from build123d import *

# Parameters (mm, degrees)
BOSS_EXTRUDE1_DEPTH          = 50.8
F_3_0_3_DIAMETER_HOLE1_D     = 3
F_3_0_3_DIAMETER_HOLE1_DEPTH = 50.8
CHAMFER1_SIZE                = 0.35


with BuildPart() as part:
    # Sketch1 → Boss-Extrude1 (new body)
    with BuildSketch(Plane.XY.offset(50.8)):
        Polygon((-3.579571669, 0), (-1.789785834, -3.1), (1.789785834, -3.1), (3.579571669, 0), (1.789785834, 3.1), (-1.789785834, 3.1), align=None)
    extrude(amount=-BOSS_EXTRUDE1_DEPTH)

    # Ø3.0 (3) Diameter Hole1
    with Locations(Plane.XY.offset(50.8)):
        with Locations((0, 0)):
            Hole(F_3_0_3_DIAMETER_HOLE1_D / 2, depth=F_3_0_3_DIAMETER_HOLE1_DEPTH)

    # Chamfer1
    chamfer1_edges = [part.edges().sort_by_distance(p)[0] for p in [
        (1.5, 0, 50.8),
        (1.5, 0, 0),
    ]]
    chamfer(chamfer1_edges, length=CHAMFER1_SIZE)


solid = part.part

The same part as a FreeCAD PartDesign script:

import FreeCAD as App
import Part
import Sketcher
from FreeCAD import Vector
Q = App.Units.Quantity


def edges_at(feature, points):
    """Names of the edges that pass closest to the given points."""
    edges = feature.Shape.Edges
    near = lambda p: min(range(len(edges)), key=lambda i: edges[i].distToShape(Part.Vertex(*p))[0])
    return sorted({f"Edge{near(p) + 1}" for p in points})


def add_polygon(sketch, points):
    """Adds a closed chain of lines whose ends are joined by coincident constraints."""
    first, n = sketch.GeometryCount, len(points)
    for a, b in zip(points, points[1:] + points[:1]):
        sketch.addGeometry(Part.LineSegment(App.Vector(*a, 0), App.Vector(*b, 0)), False)
    for i in range(n):
        sketch.addConstraint(Sketcher.Constraint("Coincident", first + i, 2, first + (i + 1) % n, 1))

doc = App.newDocument("Part")
body = doc.addObject("PartDesign::Body", "Body")

sketch1 = body.newObject("Sketcher::SketchObject", "Sketch")
sketch1.AttachmentSupport = (doc.getObject("XY_Plane"), [""])
sketch1.MapMode = "FlatFace"
sketch1.AttachmentOffset = App.Placement(Vector(0, 0, 50.8), App.Rotation())
add_polygon(sketch1, [(-3.579572, 0), (-1.789786, -3.1), (1.789786, -3.1), (3.579572, 0), (1.789786, 3.1), (-1.789786, 3.1)])
sketch1.addConstraint([
    Sketcher.Constraint("Horizontal", 1),
    Sketcher.Constraint("Horizontal", 4),
    Sketcher.Constraint("Symmetric", 0, 2, 3, 2, -1, 1),
    Sketcher.Constraint("Symmetric", 2, 2, 5, 2, -1, 1),
    Sketcher.Constraint("PointOnObject", 2, 2, -1),
    Sketcher.Constraint("Parallel", 2, 5),
    Sketcher.Constraint("Vertical", 1, 2, 3, 2),
    Sketcher.Constraint("Angle", 0, Q("-60 deg")),
    Sketcher.Constraint("DistanceY", 0, 2, -1, 1, Q("3.1 mm")),
    Sketcher.Constraint("DistanceX", 1, 1, 1, 2, Q("3.579572 mm")),
])
pad1 = body.newObject("PartDesign::Pad", "Pad")
pad1.Profile = sketch1
pad1.Length = 50.8
pad1.Reversed = True

sketch2 = body.newObject("Sketcher::SketchObject", "Sketch001")
sketch2.AttachmentSupport = (doc.getObject("XY_Plane"), [""])
sketch2.MapMode = "FlatFace"
sketch2.AttachmentOffset = App.Placement(Vector(0, 0, 50.8), App.Rotation())
sketch2.addGeometry(Part.Circle(Vector(0, 0, 0), Vector(0, 0, 1), 1.5), False)
sketch2.addConstraint([
    Sketcher.Constraint("Coincident", 0, 3, -1, 1),
    Sketcher.Constraint("Diameter", 0, Q("3 mm")),
])
doc.recompute()
hole = body.newObject("PartDesign::Hole", "Hole")
hole.Profile = sketch2
hole.ThreadType = "None"
hole.Diameter = 3
hole.DepthType = "Dimension"
hole.Depth = 50.8
hole.DrillPoint = "Flat"
doc.recompute()

chamfer = body.newObject("PartDesign::Chamfer", "Chamfer")
chamfer.Base = (hole, edges_at(hole, [(1.5, 0, 50.8), (1.5, 0, 0)]))
chamfer.Size = 0.35

doc.recompute()
